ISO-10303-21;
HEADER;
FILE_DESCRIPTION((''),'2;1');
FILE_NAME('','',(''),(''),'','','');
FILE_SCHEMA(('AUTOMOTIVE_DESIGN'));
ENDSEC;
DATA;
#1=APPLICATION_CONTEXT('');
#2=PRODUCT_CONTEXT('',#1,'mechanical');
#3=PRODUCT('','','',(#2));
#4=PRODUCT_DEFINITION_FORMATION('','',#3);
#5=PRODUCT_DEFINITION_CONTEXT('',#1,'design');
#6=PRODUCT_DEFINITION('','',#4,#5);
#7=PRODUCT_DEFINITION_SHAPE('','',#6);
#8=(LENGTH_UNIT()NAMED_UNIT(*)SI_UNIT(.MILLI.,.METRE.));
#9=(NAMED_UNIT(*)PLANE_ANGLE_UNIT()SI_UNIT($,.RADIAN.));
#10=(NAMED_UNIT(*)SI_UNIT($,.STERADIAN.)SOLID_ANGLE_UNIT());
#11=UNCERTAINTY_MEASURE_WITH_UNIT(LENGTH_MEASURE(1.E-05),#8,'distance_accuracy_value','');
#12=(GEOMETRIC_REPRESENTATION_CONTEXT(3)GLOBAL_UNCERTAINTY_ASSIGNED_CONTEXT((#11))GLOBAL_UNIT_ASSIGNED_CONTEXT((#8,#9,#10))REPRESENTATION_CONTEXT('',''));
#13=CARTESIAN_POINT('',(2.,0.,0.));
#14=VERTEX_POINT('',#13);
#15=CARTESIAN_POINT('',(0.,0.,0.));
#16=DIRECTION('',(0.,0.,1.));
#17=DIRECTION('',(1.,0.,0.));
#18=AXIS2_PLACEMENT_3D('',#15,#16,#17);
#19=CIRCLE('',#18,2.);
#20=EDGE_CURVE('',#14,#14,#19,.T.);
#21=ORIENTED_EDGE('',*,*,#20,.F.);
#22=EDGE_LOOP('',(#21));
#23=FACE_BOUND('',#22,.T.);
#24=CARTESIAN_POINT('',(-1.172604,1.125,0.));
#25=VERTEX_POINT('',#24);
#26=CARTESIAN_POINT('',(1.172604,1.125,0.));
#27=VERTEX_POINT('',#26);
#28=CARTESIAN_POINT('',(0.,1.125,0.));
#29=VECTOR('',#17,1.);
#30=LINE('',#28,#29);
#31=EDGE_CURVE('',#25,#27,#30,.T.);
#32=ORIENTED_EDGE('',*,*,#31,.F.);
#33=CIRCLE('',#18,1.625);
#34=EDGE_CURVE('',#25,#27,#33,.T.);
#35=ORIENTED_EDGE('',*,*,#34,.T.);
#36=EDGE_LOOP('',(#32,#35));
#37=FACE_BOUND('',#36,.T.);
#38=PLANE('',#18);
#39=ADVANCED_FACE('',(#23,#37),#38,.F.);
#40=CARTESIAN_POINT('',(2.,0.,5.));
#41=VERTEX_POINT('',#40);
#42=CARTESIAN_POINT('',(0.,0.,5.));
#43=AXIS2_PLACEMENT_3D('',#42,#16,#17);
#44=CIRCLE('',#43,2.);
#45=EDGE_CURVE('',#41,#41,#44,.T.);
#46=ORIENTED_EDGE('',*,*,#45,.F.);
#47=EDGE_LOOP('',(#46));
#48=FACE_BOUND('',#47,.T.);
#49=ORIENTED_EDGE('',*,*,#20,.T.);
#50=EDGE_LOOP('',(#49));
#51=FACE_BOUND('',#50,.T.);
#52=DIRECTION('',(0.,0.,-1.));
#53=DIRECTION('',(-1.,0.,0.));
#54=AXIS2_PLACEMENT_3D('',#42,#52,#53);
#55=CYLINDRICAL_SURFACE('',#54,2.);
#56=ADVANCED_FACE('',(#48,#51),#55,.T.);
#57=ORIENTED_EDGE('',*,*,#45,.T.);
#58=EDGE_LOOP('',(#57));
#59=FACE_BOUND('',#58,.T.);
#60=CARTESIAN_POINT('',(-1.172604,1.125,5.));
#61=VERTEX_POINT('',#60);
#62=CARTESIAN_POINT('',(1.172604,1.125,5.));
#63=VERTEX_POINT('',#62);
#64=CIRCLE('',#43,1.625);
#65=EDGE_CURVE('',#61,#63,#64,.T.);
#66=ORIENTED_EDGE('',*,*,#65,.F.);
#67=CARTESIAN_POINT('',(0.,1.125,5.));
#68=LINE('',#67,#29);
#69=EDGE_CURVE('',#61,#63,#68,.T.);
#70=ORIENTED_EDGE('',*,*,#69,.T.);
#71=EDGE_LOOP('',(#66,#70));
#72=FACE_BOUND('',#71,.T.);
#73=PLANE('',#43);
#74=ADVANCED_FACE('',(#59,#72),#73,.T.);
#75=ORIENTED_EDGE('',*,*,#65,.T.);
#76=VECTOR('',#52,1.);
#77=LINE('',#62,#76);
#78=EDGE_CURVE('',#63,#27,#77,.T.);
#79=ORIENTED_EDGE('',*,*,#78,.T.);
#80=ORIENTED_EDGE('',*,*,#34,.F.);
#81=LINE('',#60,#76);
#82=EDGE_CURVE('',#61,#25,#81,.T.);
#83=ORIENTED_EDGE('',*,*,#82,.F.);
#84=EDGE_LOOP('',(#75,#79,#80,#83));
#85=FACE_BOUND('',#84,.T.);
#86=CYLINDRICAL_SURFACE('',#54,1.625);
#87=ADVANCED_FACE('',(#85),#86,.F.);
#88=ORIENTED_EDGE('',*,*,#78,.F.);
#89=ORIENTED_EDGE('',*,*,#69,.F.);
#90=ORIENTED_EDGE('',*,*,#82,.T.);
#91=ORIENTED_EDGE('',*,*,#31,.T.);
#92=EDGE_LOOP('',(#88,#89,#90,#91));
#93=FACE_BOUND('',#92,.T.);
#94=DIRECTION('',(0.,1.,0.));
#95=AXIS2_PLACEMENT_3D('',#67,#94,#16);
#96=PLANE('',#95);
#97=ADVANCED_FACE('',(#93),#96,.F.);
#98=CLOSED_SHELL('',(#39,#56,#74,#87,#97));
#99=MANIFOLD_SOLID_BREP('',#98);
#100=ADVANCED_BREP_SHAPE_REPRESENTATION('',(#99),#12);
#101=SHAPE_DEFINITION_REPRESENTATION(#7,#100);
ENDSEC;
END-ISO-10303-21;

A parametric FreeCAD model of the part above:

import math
import FreeCAD as App
import Part
import Sketcher
from FreeCAD import Vector
Q = App.Units.Quantity

doc = App.newDocument("Part")
body = doc.addObject("PartDesign::Body", "Body")

# Sketch on XY plane
sketch1 = body.newObject("Sketcher::SketchObject", "Sketch")
sketch1.AttachmentSupport = (doc.getObject("XY_Plane"), [""])
sketch1.MapMode = "FlatFace"
sketch1.addGeometry(Part.Circle(Vector(0, 0, 0), Vector(0, 0, 1), 2), False)
sketch1.addGeometry(Part.ArcOfCircle(Part.Circle(Vector(0, 0, 0), Vector(0, 0, 1), 1.6), math.radians(136), math.radians(404)), False)
sketch1.addGeometry(Part.LineSegment(Vector(-1.2, 1.1, 0), Vector(1.2, 1.1, 0)), False)
sketch1.addConstraint(Sketcher.Constraint("Coincident", 1, 1, 2, 1))
sketch1.addConstraint(Sketcher.Constraint("Coincident", 2, 2, 1, 2))
sketch1.addConstraint(Sketcher.Constraint("Horizontal", 2))
sketch1.addConstraint(Sketcher.Constraint("Coincident", 0, 3, -1, 1))
sketch1.addConstraint(Sketcher.Constraint("Coincident", 1, 3, -1, 1))
sketch1.addConstraint(Sketcher.Constraint("Diameter", 0, Q("4 mm")))
sketch1.addConstraint(Sketcher.Constraint("Radius", 1, Q("1.625 mm")))
sketch1.addConstraint(Sketcher.Constraint("DistanceY", -1, 1, 1, 1, Q("1.125 mm")))
pad1 = body.newObject("PartDesign::Pad", "Pad")
pad1.Profile = sketch1
pad1.Length = 5

doc.recompute()
